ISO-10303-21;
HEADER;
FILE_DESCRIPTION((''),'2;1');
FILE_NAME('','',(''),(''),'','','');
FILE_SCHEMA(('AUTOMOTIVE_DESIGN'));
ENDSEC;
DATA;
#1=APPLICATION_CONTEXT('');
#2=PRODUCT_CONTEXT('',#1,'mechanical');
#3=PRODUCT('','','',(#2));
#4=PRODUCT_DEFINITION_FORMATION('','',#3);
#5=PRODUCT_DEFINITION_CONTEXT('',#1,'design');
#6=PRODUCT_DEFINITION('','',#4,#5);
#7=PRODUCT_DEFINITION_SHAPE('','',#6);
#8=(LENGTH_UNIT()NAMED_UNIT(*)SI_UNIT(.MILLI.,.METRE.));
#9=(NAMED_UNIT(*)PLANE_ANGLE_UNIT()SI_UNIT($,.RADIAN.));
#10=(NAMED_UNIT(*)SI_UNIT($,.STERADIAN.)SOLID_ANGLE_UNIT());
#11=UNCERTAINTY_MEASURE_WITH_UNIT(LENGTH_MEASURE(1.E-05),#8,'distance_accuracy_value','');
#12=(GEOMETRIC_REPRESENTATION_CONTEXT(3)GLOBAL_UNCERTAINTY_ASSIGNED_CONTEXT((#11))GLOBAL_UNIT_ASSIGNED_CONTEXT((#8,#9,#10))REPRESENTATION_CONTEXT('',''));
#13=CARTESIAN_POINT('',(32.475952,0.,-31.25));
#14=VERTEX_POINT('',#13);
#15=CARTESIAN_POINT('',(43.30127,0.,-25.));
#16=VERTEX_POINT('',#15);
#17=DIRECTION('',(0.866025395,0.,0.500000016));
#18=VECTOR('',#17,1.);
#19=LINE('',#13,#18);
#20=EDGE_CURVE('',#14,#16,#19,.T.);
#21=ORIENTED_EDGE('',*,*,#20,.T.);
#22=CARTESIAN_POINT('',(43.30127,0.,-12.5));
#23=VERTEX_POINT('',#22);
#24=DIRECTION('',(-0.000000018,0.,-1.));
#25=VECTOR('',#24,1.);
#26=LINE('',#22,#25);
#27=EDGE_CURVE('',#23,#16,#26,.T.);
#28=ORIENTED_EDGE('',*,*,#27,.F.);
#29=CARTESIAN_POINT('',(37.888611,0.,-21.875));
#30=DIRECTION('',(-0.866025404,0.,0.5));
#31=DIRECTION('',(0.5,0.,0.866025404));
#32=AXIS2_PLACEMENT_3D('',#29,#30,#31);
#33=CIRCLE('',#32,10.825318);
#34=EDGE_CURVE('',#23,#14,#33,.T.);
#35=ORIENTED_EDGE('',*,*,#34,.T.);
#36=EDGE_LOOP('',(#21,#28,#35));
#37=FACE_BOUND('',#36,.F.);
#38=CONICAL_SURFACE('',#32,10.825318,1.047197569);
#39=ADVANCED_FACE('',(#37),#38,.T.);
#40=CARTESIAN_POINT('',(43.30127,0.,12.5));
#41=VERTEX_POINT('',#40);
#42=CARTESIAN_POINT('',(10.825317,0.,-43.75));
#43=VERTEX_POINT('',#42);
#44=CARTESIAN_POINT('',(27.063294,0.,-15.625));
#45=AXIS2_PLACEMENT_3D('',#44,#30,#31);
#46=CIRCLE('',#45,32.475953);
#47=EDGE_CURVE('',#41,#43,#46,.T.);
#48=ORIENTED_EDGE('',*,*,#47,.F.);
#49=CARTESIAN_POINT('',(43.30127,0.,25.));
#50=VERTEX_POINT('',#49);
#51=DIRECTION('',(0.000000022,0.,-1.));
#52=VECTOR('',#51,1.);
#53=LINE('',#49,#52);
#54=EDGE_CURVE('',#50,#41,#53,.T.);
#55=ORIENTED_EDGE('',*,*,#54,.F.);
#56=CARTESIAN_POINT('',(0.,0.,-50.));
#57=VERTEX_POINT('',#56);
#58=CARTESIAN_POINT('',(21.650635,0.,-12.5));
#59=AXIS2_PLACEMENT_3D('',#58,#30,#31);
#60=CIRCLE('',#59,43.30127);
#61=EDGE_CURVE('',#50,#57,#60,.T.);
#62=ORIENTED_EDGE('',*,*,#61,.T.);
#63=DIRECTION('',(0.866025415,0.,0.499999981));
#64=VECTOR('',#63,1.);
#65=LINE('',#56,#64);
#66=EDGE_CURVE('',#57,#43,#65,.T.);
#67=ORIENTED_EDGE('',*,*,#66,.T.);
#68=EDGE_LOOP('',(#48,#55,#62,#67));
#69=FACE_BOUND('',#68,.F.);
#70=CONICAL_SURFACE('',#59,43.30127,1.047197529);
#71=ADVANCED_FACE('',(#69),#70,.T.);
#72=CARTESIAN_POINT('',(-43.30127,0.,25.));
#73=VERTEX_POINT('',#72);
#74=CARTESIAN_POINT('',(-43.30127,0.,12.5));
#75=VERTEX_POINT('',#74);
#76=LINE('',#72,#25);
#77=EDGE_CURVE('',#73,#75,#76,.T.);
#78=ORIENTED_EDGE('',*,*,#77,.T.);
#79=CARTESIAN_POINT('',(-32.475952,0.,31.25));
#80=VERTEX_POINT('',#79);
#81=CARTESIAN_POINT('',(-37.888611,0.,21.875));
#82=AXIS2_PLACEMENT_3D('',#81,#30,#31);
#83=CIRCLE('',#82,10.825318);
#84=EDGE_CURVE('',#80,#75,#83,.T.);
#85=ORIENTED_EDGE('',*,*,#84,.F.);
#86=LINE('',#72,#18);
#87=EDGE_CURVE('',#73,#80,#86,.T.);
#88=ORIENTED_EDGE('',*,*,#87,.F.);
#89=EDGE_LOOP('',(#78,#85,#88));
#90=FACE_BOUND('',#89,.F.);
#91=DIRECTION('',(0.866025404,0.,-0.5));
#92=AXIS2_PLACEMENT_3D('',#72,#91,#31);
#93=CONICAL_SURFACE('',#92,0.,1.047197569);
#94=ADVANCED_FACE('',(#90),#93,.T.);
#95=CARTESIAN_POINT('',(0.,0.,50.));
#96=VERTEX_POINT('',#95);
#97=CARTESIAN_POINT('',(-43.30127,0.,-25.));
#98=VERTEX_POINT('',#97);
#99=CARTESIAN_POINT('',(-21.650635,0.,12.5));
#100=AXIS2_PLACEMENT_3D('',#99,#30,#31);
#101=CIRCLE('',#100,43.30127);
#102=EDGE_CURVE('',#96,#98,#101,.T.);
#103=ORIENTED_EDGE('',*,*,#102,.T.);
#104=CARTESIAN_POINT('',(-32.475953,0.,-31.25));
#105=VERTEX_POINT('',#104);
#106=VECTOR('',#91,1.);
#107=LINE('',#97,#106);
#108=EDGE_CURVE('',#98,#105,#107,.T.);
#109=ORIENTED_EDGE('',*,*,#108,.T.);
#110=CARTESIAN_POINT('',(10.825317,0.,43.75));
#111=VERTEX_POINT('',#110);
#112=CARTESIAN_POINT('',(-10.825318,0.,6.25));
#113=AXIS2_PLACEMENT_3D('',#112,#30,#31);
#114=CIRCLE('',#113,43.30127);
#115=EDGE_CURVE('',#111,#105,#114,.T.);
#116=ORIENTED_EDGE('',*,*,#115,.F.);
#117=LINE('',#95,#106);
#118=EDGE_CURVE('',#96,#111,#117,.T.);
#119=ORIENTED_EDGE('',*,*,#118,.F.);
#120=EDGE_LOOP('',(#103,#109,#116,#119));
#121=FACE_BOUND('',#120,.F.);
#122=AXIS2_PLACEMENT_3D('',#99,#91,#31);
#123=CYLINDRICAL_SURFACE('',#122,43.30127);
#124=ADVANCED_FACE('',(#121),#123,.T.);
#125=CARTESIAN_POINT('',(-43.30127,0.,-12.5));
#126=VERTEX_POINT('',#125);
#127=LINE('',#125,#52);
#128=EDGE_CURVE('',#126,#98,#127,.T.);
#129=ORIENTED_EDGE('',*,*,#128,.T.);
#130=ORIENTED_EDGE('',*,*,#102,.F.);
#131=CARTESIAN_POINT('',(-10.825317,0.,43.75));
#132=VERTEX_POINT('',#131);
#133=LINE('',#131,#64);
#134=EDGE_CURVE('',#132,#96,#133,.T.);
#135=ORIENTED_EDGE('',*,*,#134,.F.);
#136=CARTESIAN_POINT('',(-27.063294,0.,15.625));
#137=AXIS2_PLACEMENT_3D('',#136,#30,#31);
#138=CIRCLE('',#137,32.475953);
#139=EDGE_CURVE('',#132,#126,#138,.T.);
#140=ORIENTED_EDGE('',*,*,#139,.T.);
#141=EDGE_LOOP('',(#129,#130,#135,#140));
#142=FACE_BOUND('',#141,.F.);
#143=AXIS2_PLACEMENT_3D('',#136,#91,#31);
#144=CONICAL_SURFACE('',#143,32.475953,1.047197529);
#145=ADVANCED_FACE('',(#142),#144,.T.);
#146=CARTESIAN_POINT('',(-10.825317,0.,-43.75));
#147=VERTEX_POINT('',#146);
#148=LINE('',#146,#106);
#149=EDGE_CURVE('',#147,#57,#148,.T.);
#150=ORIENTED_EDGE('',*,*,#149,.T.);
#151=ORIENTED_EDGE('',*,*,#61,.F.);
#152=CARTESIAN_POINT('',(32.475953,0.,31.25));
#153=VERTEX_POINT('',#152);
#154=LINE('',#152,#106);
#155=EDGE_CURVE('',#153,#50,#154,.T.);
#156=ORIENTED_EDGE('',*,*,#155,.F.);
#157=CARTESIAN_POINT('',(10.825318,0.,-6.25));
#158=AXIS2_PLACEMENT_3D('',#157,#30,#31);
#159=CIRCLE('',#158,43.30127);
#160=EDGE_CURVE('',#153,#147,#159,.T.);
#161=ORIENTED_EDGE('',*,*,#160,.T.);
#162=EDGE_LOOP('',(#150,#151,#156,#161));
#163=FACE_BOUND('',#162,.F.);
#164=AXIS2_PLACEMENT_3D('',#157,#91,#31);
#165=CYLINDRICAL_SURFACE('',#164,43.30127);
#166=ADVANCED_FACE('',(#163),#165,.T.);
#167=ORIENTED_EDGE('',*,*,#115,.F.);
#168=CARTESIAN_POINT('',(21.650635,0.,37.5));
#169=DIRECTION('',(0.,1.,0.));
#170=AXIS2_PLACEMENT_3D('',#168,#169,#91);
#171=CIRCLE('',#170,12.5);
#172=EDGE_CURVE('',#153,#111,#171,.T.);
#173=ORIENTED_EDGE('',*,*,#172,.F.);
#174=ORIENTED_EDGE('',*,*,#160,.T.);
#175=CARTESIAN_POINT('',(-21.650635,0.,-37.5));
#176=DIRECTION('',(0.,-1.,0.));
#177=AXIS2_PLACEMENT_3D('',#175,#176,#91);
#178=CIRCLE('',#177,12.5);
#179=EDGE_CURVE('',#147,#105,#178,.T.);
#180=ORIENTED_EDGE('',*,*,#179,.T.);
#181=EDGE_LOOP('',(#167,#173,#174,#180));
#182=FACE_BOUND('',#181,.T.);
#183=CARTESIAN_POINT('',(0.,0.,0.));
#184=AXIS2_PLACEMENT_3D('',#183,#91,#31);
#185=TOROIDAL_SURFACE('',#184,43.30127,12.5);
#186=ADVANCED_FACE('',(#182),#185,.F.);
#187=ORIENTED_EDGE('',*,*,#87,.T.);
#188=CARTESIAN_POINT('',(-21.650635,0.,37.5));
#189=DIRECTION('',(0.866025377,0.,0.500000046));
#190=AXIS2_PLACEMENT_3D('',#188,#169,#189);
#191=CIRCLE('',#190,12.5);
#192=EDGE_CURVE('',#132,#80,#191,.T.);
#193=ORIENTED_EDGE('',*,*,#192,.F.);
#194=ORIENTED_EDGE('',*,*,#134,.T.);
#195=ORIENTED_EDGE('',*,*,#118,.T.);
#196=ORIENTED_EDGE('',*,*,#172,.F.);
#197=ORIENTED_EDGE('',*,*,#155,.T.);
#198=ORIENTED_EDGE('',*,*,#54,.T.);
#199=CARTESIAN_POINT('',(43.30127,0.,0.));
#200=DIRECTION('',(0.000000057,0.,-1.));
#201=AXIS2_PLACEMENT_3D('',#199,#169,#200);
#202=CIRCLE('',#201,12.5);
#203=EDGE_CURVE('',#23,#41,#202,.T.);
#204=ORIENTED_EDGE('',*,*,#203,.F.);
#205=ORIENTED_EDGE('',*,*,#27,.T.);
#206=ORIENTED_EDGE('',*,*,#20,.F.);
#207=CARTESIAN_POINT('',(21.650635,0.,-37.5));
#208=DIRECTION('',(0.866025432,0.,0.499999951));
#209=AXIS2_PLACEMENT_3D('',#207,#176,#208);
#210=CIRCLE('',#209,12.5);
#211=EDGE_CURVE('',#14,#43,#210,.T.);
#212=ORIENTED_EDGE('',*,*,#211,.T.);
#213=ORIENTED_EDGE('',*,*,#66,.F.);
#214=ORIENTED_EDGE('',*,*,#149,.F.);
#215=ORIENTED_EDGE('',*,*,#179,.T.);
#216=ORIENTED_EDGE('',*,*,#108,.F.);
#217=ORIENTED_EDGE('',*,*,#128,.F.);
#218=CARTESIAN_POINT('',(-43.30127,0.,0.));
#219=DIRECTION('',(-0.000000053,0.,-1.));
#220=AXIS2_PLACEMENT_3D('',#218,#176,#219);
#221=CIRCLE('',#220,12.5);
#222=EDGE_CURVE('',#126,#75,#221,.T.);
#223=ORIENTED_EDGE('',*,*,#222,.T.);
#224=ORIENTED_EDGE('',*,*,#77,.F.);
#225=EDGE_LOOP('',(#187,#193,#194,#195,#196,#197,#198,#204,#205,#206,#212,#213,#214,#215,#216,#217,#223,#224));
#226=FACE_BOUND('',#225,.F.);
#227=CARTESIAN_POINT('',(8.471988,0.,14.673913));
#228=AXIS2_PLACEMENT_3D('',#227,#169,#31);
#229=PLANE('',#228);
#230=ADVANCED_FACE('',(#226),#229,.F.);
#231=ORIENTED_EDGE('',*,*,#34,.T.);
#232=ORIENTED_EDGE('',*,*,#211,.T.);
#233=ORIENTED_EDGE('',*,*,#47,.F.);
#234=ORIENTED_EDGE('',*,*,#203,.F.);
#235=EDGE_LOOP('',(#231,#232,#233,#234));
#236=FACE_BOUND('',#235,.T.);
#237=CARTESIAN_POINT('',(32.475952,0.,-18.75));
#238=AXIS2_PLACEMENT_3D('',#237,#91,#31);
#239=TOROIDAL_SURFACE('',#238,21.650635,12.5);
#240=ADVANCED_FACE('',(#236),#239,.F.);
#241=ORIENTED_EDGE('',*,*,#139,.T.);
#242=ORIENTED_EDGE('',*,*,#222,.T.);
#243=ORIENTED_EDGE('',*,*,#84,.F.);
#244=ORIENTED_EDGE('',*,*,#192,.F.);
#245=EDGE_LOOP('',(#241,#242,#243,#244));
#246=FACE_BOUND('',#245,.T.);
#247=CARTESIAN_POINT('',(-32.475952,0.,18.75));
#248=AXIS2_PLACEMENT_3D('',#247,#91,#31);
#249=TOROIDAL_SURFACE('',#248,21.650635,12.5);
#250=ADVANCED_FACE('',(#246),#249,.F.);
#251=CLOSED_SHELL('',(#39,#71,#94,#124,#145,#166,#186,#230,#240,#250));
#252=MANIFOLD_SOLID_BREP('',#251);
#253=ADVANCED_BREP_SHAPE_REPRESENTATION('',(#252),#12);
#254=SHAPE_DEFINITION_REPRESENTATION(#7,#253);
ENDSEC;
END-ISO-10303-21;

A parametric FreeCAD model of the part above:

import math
import FreeCAD as App
import Part
import Sketcher
Q = App.Units.Quantity

doc = App.newDocument("Part")
params = doc.addObject("Spreadsheet::Sheet", "Params")
for row, (alias, value) in enumerate([
    ("sketch1_radius", "12.5 mm"),
    ("sketch1_height", "100 mm"),
    ("sketch1_height2", "12.5 mm"),
    ("sketch1_length", "12.5 mm"),
    ("revolution_angle", "180 deg"),
], start=1):
    params.set(f"A{row}", alias)
    params.set(f"B{row}", "=" + value)
    params.setAlias(f"B{row}", alias)

body = doc.addObject("PartDesign::Body", "Body")

sketch1 = body.newObject("Sketcher::SketchObject", "Sketch")
sketch1.AttachmentSupport = (doc.getObject("XZ_Plane"), [""])
sketch1.MapMode = "FlatFace"
sketch1.addGeometry(Part.LineSegment(App.Vector(43, -25, 0), App.Vector(43, -12, 0)), False)
sketch1.addGeometry(Part.ArcOfCircle(Part.Circle(App.Vector(43, 0, 0), App.Vector(0, 0, 1), 12), math.radians(90), math.radians(270)), False)
sketch1.addGeometry(Part.LineSegment(App.Vector(43, 12, 0), App.Vector(43, 25, 0)), False)
sketch1.addGeometry(Part.LineSegment(App.Vector(43, 25, 0), App.Vector(32, 31, 0)), False)
sketch1.addGeometry(Part.ArcOfCircle(Part.Circle(App.Vector(22, 37, 0), App.Vector(0, 0, 1), 12), math.radians(150), math.radians(330)), False)
sketch1.addGeometry(Part.LineSegment(App.Vector(11, 44, 0), App.Vector(0, 50, 0)), False)
sketch1.addGeometry(Part.LineSegment(App.Vector(0, 50, 0), App.Vector(0, -50, 0)), False)
sketch1.addGeometry(Part.LineSegment(App.Vector(0, -50, 0), App.Vector(11, -44, 0)), False)
sketch1.addGeometry(Part.ArcOfCircle(Part.Circle(App.Vector(22, -37, 0), App.Vector(0, 0, 1), 12), math.radians(30), math.radians(210)), False)
sketch1.addGeometry(Part.LineSegment(App.Vector(32, -31, 0), App.Vector(43, -25, 0)), False)
sketch1.addConstraint(Sketcher.Constraint("Coincident", 0, 2, 1, 2))
sketch1.addConstraint(Sketcher.Constraint("Coincident", 1, 1, 2, 1))
sketch1.addConstraint(Sketcher.Constraint("Coincident", 2, 2, 3, 1))
sketch1.addConstraint(Sketcher.Constraint("Coincident", 3, 2, 4, 2))
sketch1.addConstraint(Sketcher.Constraint("Coincident", 4, 1, 5, 1))
sketch1.addConstraint(Sketcher.Constraint("Coincident", 5, 2, 6, 1))
sketch1.addConstraint(Sketcher.Constraint("Coincident", 6, 2, 7, 1))
sketch1.addConstraint(Sketcher.Constraint("Coincident", 7, 2, 8, 2))
sketch1.addConstraint(Sketcher.Constraint("Coincident", 8, 1, 9, 1))
sketch1.addConstraint(Sketcher.Constraint("Coincident", 9, 2, 0, 1))
sketch1.addConstraint(Sketcher.Constraint("Vertical", 0))
sketch1.addConstraint(Sketcher.Constraint("Vertical", 2))
sketch1.addConstraint(Sketcher.Constraint("Vertical", 6))
sketch1.addConstraint(Sketcher.Constraint("Equal", 1, 4))
sketch1.addConstraint(Sketcher.Constraint("Equal", 4, 8))
sketch1.addConstraint(Sketcher.Constraint("Symmetric", 5, 2, 6, 2, -1, 1))
sketch1.addConstraint(Sketcher.Constraint("Symmetric", 4, 3, 8, 3, -1))
sketch1.addConstraint(Sketcher.Constraint("Symmetric", 0, 2, 1, 1, -1))
sketch1.addConstraint(Sketcher.Constraint("Parallel", 3, 5))
sketch1.addConstraint(Sketcher.Constraint("Parallel", 7, 9))
sketch1.addConstraint(Sketcher.Constraint("Vertical", 1, 3, 0, 2))
sketch1.addConstraint(Sketcher.Constraint("Vertical", 4, 1, 7, 2))
sketch1.addConstraint(Sketcher.Constraint("Vertical", 3, 2, 8, 1))
sketch1.addConstraint(Sketcher.Constraint("Equal", 3, 5))
sketch1.addConstraint(Sketcher.Constraint("Radius", 1, 12.5))
sketch1.addConstraint(Sketcher.Constraint("DistanceY", 6, 2, 6, 1, 100.0))
sketch1.addConstraint(Sketcher.Constraint("Angle", 3, Q("149.999999 deg")))
sketch1.addConstraint(Sketcher.Constraint("DistanceY", 0, 1, 0, 2, 12.5))
sketch1.addConstraint(Sketcher.Constraint("DistanceY", 8, 3, 4, 3, 74.999999))
sketch1.addConstraint(Sketcher.Constraint("Distance", 3, 12.5))
sketch1.setExpression("Constraints[24]", "Params.sketch1_radius")
sketch1.setExpression("Constraints[25]", "Params.sketch1_height")
sketch1.setExpression("Constraints[27]", "Params.sketch1_height2")
sketch1.setExpression("Constraints[29]", "Params.sketch1_length")
revolution = body.newObject("PartDesign::Revolution", "Revolution")
revolution.Profile = sketch1
revolution.ReferenceAxis = (sketch1, ["V_Axis"])
revolution.setExpression("Angle", "Params.revolution_angle")
revolution.Reversed = True
body2 = doc.addObject("PartDesign::Body", "Body001")
doc.recompute()

body.Placement = App.Placement(App.Vector(0, 0, 0), App.Rotation(App.Vector(1, 0, 0), 180))
boolean = body2.newObject("PartDesign::Boolean", "Boolean")
boolean.Type = "Fuse"
boolean.addObjects([body])
body3 = doc.addObject("PartDesign::Body", "Body002")
doc.recompute()

body2.Placement = App.Placement(App.Vector(0, 0, 0), App.Rotation(App.Vector(0, 1, 0), 300))
boolean2 = body3.newObject("PartDesign::Boolean", "Boolean001")
boolean2.Type = "Fuse"
boolean2.addObjects([body2])

doc.recompute()
